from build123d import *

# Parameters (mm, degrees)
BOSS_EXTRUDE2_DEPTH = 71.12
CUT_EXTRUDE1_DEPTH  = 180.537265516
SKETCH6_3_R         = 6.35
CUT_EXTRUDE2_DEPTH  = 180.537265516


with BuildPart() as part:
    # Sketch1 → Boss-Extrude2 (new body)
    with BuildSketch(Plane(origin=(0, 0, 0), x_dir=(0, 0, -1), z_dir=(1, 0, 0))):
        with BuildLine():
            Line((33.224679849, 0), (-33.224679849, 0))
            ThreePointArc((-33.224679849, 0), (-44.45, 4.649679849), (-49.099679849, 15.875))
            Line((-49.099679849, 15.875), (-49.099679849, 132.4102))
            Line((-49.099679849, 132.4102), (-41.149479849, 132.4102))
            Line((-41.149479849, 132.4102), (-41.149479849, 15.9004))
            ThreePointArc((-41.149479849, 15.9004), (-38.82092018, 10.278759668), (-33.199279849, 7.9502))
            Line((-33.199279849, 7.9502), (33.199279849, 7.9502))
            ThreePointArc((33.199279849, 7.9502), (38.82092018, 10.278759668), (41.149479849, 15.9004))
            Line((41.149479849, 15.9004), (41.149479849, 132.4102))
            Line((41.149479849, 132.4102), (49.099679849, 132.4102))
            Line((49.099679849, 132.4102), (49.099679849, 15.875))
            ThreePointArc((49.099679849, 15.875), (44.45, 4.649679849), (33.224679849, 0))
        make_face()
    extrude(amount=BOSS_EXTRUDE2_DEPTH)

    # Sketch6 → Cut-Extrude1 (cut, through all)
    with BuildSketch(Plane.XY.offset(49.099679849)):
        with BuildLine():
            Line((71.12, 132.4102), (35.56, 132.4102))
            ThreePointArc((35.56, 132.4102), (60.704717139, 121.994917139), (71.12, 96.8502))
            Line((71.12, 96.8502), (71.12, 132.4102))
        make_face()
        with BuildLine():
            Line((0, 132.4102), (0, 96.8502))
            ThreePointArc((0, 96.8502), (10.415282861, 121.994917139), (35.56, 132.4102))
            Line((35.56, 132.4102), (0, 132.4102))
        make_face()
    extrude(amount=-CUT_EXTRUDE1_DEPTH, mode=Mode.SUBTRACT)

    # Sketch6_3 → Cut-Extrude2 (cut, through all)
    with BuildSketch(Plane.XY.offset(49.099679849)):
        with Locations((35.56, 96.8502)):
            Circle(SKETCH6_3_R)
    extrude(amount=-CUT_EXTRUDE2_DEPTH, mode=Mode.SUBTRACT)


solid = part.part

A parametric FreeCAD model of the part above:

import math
import FreeCAD as App
import Part
import Sketcher

V = App.Vector
Q = App.Units.Quantity

doc = App.newDocument("Part")
body = doc.addObject("PartDesign::Body", "Body")

sketch1 = body.newObject("Sketcher::SketchObject", "Sketch")
sketch1.AttachmentSupport = (doc.getObject("YZ_Plane"), [""])
sketch1.MapMode = "FlatFace"
sketch1.addGeometry([
    Part.LineSegment(V(0, 33, 0), V(0, -33, 0)),
    Part.ArcOfCircle(Part.Circle(V(16, -33, 0), V(0, 0, 1), 16), math.radians(-180), math.radians(-90)),
    Part.LineSegment(V(16, -49, 0), V(132, -49, 0)),
    Part.LineSegment(V(132, -49, 0), V(132, -41, 0)),
    Part.LineSegment(V(132, -41, 0), V(16, -41, 0)),
    Part.ArcOfCircle(Part.Circle(V(16, -33, 0), V(0, 0, 1), 8), math.radians(-180), math.radians(-90)),
    Part.LineSegment(V(8, -33, 0), V(8, 33, 0)),
    Part.ArcOfCircle(Part.Circle(V(16, 33, 0), V(0, 0, 1), 8), math.radians(90), math.radians(180)),
    Part.LineSegment(V(16, 41, 0), V(132, 41, 0)),
    Part.LineSegment(V(132, 41, 0), V(132, 49, 0)),
    Part.LineSegment(V(132, 49, 0), V(16, 49, 0)),
    Part.ArcOfCircle(Part.Circle(V(16, 33, 0), V(0, 0, 1), 16), math.radians(90), math.radians(180)),
], False)
sketch1.addConstraint([
    Sketcher.Constraint("Tangent", 0, 2, 1, 1),
    Sketcher.Constraint("Tangent", 1, 2, 2, 1),
    Sketcher.Constraint("Coincident", 2, 2, 3, 1),
    Sketcher.Constraint("Coincident", 3, 2, 4, 1),
    Sketcher.Constraint("Tangent", 4, 2, 5, 2),
    Sketcher.Constraint("Tangent", 5, 1, 6, 1),
    Sketcher.Constraint("Tangent", 6, 2, 7, 2),
    Sketcher.Constraint("Tangent", 7, 1, 8, 1),
    Sketcher.Constraint("Coincident", 8, 2, 9, 1),
    Sketcher.Constraint("Coincident", 9, 2, 10, 1),
    Sketcher.Constraint("Tangent", 10, 2, 11, 1),
    Sketcher.Constraint("Tangent", 11, 2, 0, 1),
    Sketcher.Constraint("Vertical", 0),
    Sketcher.Constraint("Horizontal", 2),
    Sketcher.Constraint("Vertical", 3),
    Sketcher.Constraint("Horizontal", 4),
    Sketcher.Constraint("Vertical", 6),
    Sketcher.Constraint("Horizontal", 8),
    Sketcher.Constraint("Vertical", 9),
    Sketcher.Constraint("Horizontal", 10),
    Sketcher.Constraint("Equal", 5, 7),
    Sketcher.Constraint("Equal", 1, 11),
    Sketcher.Constraint("Symmetric", 0, 2, 11, 2, -1, 1),
    Sketcher.Constraint("Symmetric", 3, 2, 8, 2, -1),
    Sketcher.Constraint("Radius", 1, Q("0.625 in")),
    Sketcher.Constraint("Radius", 5, Q("0.313 in")),
    Sketcher.Constraint("DistanceX", 2, 1, 2, 2, Q("4.588 in")),
    Sketcher.Constraint("DistanceX", 4, 2, 4, 1, Q("4.587 in")),
    Sketcher.Constraint("DistanceY", 3, 1, 3, 2, Q("0.313 in")),
    Sketcher.Constraint("DistanceY", 0, 2, 0, 1, 66.44936),
])
pad1 = body.newObject("PartDesign::Pad", "Pad")
pad1.Profile = sketch1
pad1.Length = Q("2.8 in")

sketch2 = body.newObject("Sketcher::SketchObject", "Sketch001")
sketch2.AttachmentSupport = (doc.getObject("XY_Plane"), [""])
sketch2.MapMode = "FlatFace"
sketch2.AttachmentOffset = App.Placement(V(0, 0, 49.09968), App.Rotation())
sketch2.addGeometry([
    Part.LineSegment(V(71, 132, 0), V(36, 132, 0)),
    Part.ArcOfCircle(Part.Circle(V(36, 97, 0), V(0, 0, 1), 36), math.radians(0), math.radians(90)),
    Part.LineSegment(V(71, 97, 0), V(71, 132, 0)),
    Part.LineSegment(V(0, 132, 0), V(0, 97, 0)),
    Part.ArcOfCircle(Part.Circle(V(36, 97, 0), V(0, 0, 1), 36), math.radians(90), math.radians(180)),
    Part.LineSegment(V(36, 132, 0), V(0, 132, 0)),
], False)
sketch2.addConstraint([
    Sketcher.Constraint("Tangent", 0, 2, 1, 2),
    Sketcher.Constraint("Tangent", 1, 1, 2, 1),
    Sketcher.Constraint("Coincident", 2, 2, 0, 1),
    Sketcher.Constraint("Tangent", 3, 2, 4, 2),
    Sketcher.Constraint("Tangent", 4, 1, 5, 1),
    Sketcher.Constraint("Coincident", 5, 2, 3, 1),
    Sketcher.Constraint("Horizontal", 0),
    Sketcher.Constraint("Vertical", 2),
    Sketcher.Constraint("Vertical", 3),
    Sketcher.Constraint("Horizontal", 5),
    Sketcher.Constraint("Coincident", 4, 3, 1, 3),
    Sketcher.Constraint("Equal", 1, 4),
    Sketcher.Constraint("PointOnObject", 3, 2, -2),
    Sketcher.Constraint("Radius", 1, Q("1.4 in")),
    Sketcher.Constraint("DistanceY", -1, 1, 1, 3, Q("3.813 in")),
])
pocket1 = body.newObject("PartDesign::Pocket", "Pocket")
pocket1.Profile = sketch2
pocket1.Type = "ThroughAll"

sketch3 = body.newObject("Sketcher::SketchObject", "Sketch002")
sketch3.AttachmentSupport = (doc.getObject("XY_Plane"), [""])
sketch3.MapMode = "FlatFace"
sketch3.AttachmentOffset = App.Placement(V(0, 0, 49.09968), App.Rotation())
sketch3.addGeometry(Part.Circle(V(36, 97, 0), V(0, 0, 1), 6), False)
sketch3.addConstraint([
    Sketcher.Constraint("Diameter", 0, Q("0.5 in")),
    Sketcher.Constraint("DistanceX", -1, 1, 0, 3, Q("1.4 in")),
    Sketcher.Constraint("DistanceY", -1, 1, 0, 3, Q("3.813 in")),
])
pocket2 = body.newObject("PartDesign::Pocket", "Pocket001")
pocket2.Profile = sketch3
pocket2.Type = "ThroughAll"

doc.recompute()
